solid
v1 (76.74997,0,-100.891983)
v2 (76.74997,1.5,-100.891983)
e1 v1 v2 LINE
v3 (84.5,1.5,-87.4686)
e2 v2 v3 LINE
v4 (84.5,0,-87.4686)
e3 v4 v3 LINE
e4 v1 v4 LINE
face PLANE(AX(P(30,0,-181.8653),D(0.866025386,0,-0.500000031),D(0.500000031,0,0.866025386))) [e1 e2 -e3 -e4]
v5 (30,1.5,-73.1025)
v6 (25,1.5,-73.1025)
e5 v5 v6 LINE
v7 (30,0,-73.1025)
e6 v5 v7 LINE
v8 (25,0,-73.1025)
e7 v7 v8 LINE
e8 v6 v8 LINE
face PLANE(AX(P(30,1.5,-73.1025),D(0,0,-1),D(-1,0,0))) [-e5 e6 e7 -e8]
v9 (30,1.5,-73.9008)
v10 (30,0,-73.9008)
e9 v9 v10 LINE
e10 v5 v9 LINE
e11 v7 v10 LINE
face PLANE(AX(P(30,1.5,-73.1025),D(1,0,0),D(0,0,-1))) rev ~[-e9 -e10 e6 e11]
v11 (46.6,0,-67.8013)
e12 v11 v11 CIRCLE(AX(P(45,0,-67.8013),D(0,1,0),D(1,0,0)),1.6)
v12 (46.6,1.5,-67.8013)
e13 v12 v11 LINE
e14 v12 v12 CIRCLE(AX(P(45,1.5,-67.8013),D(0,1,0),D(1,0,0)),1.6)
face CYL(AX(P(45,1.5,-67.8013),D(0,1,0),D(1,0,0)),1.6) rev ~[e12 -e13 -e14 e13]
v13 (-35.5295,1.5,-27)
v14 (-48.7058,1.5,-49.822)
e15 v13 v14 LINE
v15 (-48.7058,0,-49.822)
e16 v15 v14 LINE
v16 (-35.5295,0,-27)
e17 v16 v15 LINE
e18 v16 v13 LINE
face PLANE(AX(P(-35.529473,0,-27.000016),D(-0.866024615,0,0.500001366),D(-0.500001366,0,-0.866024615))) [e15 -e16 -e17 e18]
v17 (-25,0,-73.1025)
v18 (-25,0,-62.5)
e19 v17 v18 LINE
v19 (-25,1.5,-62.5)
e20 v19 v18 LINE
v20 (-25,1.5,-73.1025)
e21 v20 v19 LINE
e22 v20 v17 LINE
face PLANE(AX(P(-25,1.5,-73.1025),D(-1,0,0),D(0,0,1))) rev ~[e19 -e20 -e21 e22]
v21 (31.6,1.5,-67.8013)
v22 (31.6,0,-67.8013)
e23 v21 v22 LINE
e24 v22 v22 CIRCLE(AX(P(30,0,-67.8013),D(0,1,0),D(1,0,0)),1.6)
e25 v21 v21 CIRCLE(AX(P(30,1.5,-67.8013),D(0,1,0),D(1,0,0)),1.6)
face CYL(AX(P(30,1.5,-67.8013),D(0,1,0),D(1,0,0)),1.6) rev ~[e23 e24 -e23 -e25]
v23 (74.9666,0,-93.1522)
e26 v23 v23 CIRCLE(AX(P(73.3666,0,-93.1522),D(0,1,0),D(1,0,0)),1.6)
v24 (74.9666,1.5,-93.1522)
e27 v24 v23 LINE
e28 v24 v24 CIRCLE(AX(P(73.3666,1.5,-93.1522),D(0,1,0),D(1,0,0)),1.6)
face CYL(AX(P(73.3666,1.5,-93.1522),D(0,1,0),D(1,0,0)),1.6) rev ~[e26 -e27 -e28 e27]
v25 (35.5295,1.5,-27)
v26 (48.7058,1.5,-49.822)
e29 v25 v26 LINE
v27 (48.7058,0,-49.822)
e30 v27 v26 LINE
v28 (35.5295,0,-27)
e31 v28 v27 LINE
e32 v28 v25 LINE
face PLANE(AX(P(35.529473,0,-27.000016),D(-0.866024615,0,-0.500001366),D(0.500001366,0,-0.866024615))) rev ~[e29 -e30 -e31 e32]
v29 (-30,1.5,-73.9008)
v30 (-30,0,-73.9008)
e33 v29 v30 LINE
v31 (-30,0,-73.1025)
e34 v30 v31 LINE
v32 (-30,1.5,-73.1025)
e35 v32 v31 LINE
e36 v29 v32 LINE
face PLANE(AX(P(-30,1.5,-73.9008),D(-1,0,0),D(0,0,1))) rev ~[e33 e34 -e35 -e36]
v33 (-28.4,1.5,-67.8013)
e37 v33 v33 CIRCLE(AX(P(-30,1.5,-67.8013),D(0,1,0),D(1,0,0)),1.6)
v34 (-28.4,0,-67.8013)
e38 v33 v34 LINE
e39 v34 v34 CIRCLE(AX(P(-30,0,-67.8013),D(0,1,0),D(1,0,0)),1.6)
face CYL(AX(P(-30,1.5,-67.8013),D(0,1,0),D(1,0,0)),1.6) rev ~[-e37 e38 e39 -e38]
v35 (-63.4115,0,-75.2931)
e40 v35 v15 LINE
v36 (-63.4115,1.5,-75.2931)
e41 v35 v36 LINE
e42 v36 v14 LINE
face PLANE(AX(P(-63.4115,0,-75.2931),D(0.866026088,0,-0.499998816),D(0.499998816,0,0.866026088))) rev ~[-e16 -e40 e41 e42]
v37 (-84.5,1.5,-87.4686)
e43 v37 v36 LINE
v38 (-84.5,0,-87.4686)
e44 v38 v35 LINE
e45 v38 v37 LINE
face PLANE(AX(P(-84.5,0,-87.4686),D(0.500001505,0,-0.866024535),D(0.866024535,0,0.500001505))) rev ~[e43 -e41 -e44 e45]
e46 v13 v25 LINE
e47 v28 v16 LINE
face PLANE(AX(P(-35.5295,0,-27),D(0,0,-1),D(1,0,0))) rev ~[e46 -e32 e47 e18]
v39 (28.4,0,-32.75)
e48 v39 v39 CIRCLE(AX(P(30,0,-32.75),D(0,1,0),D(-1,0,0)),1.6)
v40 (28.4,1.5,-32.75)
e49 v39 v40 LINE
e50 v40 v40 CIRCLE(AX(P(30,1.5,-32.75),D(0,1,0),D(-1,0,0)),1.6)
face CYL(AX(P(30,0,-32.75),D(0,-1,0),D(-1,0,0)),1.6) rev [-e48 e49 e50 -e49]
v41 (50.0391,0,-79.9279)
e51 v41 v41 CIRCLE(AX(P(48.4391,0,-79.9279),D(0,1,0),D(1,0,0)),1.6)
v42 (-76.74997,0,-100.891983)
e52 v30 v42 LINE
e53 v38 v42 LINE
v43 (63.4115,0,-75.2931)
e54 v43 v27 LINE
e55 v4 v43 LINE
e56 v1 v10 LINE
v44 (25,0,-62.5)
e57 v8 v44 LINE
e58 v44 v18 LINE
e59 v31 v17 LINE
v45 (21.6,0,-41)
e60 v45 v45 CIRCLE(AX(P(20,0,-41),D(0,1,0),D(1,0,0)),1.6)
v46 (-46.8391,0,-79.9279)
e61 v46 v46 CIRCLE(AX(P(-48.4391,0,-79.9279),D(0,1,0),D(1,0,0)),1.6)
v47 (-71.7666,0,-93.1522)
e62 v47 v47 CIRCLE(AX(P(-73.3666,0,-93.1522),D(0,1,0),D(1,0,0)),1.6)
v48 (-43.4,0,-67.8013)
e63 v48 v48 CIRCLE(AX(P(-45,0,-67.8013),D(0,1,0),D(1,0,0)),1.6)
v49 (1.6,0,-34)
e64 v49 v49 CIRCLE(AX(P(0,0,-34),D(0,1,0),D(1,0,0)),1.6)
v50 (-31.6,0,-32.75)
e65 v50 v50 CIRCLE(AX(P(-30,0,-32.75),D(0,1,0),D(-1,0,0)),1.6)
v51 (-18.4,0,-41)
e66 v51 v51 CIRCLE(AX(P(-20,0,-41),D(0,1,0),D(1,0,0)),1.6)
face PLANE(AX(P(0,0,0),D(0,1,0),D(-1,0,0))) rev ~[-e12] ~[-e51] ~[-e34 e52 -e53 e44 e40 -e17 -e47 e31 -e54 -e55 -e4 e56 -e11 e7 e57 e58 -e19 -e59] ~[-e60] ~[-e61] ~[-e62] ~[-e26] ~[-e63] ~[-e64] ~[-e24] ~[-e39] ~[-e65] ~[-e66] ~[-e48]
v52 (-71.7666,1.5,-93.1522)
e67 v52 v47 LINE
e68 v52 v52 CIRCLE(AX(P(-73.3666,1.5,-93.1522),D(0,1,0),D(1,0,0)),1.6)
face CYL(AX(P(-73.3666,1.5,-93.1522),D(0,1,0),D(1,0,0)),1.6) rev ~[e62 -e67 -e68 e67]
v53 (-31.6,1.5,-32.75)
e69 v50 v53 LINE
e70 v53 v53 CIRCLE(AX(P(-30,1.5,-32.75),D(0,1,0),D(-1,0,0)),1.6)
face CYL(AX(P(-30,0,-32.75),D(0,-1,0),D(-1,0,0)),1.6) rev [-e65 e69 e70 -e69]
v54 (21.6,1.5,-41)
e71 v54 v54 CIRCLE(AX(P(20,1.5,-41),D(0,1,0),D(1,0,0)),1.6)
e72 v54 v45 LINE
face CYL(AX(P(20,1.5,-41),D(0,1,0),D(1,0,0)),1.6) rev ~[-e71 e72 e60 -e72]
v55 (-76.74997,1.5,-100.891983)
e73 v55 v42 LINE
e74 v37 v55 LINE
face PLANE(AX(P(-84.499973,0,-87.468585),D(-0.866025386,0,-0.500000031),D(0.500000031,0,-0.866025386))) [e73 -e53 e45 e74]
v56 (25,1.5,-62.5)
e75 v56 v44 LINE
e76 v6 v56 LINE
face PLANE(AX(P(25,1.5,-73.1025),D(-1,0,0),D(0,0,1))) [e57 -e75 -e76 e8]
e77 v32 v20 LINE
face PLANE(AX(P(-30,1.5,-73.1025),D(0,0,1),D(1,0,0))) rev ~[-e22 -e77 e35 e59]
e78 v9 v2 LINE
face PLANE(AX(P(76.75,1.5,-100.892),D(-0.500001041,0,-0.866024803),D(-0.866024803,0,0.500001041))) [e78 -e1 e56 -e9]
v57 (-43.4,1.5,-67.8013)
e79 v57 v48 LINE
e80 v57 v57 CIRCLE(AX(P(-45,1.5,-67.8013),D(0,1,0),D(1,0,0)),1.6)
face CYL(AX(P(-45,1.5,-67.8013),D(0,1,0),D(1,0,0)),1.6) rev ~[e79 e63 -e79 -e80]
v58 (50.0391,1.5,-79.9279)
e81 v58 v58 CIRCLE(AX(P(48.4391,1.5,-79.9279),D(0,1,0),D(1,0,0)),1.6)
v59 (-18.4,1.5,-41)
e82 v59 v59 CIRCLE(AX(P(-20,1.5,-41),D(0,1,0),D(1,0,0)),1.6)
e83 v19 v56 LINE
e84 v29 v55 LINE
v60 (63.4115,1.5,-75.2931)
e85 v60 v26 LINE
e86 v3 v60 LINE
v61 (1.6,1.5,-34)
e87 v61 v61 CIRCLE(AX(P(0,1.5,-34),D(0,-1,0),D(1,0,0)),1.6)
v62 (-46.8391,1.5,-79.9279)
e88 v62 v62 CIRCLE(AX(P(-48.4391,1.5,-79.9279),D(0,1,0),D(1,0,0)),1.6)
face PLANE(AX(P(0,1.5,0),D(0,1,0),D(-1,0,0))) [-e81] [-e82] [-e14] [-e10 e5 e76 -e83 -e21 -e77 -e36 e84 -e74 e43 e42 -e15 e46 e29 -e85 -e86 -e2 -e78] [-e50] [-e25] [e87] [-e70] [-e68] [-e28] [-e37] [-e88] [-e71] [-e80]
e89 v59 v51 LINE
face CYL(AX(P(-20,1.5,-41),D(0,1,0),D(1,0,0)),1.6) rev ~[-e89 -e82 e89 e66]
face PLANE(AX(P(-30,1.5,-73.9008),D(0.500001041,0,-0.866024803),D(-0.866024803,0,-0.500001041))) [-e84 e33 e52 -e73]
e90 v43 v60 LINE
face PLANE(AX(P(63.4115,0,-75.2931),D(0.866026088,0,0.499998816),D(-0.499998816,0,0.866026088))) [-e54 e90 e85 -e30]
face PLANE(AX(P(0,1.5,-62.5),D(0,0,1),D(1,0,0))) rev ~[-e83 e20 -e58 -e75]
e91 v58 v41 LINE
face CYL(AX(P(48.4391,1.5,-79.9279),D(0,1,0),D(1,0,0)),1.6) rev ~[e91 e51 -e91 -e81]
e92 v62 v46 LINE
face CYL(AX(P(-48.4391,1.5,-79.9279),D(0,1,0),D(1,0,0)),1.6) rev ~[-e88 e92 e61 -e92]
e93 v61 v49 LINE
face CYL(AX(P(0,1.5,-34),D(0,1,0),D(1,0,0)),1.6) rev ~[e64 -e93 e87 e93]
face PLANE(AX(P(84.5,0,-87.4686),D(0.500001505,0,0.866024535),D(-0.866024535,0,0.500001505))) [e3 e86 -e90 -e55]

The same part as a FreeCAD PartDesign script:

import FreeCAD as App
import Part
import Sketcher

V = App.Vector
Q = App.Units.Quantity


def add_polygon(sketch, points):
    """Adds a closed chain of lines whose ends are joined by coincident constraints."""
    first, n = sketch.GeometryCount, len(points)
    for a, b in zip(points, points[1:] + points[:1]):
        sketch.addGeometry(Part.LineSegment(App.Vector(*a, 0), App.Vector(*b, 0)), False)
    for i in range(n):
        sketch.addConstraint(Sketcher.Constraint("Coincident", first + i, 2, first + (i + 1) % n, 1))

doc = App.newDocument("Part")
body = doc.addObject("PartDesign::Body", "Body")

# Sketch on XZ plane
sketch1 = doc.addObject("Sketcher::SketchObject", "Sketch")
body.addObject(sketch1)
sketch1.AttachmentSupport = (doc.XZ_Plane, [""])
sketch1.MapMode = "FlatFace"
add_polygon(sketch1, [(-63.4, -75.3), (-48.7, -49.8), (-35.5, -27), (35.5, -27), (48.7, -49.8), (63.4, -75.3), (84.5, -87.5), (30, -181.9), (-30, -181.9), (-84.5, -87.5)])  # lines 0-9
sketch1.addGeometry(Part.Circle(V(-30, -32.8, 0), V(0, 0, 1), 1.6), False)  # 10
sketch1.addGeometry(Part.Circle(V(30, -32.8, 0), V(0, 0, 1), 1.6), False)  # 11
sketch1.addConstraint(Sketcher.Constraint("Horizontal", 2))
sketch1.addConstraint(Sketcher.Constraint("Horizontal", 7))
sketch1.addConstraint(Sketcher.Constraint("Equal", 10, 11))
sketch1.addConstraint(Sketcher.Constraint("Symmetric", 10, 3, 11, 3, -2))
sketch1.addConstraint(Sketcher.Constraint("Symmetric", 0, 2, 3, 2, -2))
sketch1.addConstraint(Sketcher.Constraint("Symmetric", 5, 2, 8, 2, -2))
sketch1.addConstraint(Sketcher.Constraint("Symmetric", 4, 2, 9, 2, -2))
sketch1.addConstraint(Sketcher.Constraint("Parallel", 0, 1))
sketch1.addConstraint(Sketcher.Constraint("Parallel", 3, 4))
sketch1.addConstraint(Sketcher.Constraint("Perpendicular", 1, 5))
sketch1.addConstraint(Sketcher.Constraint("Perpendicular", 5, 6))
sketch1.addConstraint(Sketcher.Constraint("Parallel", 4, 8))
sketch1.addConstraint(Sketcher.Constraint("Vertical", 11, 3, 6, 2))
sketch1.addConstraint(Sketcher.Constraint("Diameter", 10, 3.2))
sketch1.addConstraint(Sketcher.Constraint("DistanceX", 7, 2, 7, 1, 60.0))
sketch1.addConstraint(Sketcher.Constraint("Angle", 0, Q("60 deg")))
sketch1.addConstraint(Sketcher.Constraint("DistanceY", 1, 2, -1, 1, 27.0))
sketch1.addConstraint(Sketcher.Constraint("DistanceY", 10, 3, -1, 1, 32.75))
sketch1.addConstraint(Sketcher.Constraint("Distance", 6, 109.0))
sketch1.addConstraint(Sketcher.Constraint("DistanceX", 2, 1, 2, 2, 71.059))
sketch1.addConstraint(Sketcher.Constraint("Distance", 5, 24.351))
sketch1.addConstraint(Sketcher.Constraint("DistanceY", 0, 2, -1, 1, 49.822))
pad1 = doc.addObject("PartDesign::Pad", "Pad")
body.addObject(pad1)
pad1.Profile = sketch1
pad1.Length = 1.5
pad1.Reversed = True

# Sketch on XZ plane
sketch2 = doc.addObject("Sketcher::SketchObject", "Sketch001")
body.addObject(sketch2)
sketch2.AttachmentSupport = (doc.XZ_Plane, [""])
sketch2.MapMode = "FlatFace"
sketch2.AttachmentOffset = App.Placement(V(0, 0, -1.5), App.Rotation())
sketch2.addGeometry(Part.Circle(V(30, -67.8, 0), V(0, 0, 1), 1.6), False)  # 0
sketch2.addGeometry(Part.Circle(V(45, -67.8, 0), V(0, 0, 1), 1.6), False)  # 1
add_polygon(sketch2, [(30, -181.9), (-30, -181.9), (-76.8, -100.9), (-30, -73.9), (-30, -73.1), (-25, -73.1), (-25, -62.5), (25, -62.5), (25, -73.1), (30, -73.1), (30, -73.9), (76.7, -100.9)])  # lines 2-13
sketch2.addGeometry(Part.Circle(V(-30, -67.8, 0), V(0, 0, 1), 1.6), False)  # 14
sketch2.addGeometry(Part.Circle(V(-45, -67.8, 0), V(0, 0, 1), 1.6), False)  # 15
sketch2.addConstraint(Sketcher.Constraint("Horizontal", 2))
sketch2.addConstraint(Sketcher.Constraint("Vertical", 5))
sketch2.addConstraint(Sketcher.Constraint("Horizontal", 6))
sketch2.addConstraint(Sketcher.Constraint("Vertical", 7))
sketch2.addConstraint(Sketcher.Constraint("Horizontal", 8))
sketch2.addConstraint(Sketcher.Constraint("Vertical", 9))
sketch2.addConstraint(Sketcher.Constraint("Horizontal", 10))
sketch2.addConstraint(Sketcher.Constraint("Vertical", 11))
sketch2.addConstraint(Sketcher.Constraint("Equal", 0, 1))
sketch2.addConstraint(Sketcher.Constraint("Equal", 1, 14))
sketch2.addConstraint(Sketcher.Constraint("Equal", 14, 15))
sketch2.addConstraint(Sketcher.Constraint("Symmetric", 0, 3, 14, 3, -2))
sketch2.addConstraint(Sketcher.Constraint("Symmetric", 1, 3, 15, 3, -2))
sketch2.addConstraint(Sketcher.Constraint("Symmetric", 6, 2, 9, 2, -2))
sketch2.addConstraint(Sketcher.Constraint("Symmetric", 4, 2, 11, 2, -2))
sketch2.addConstraint(Sketcher.Constraint("Symmetric", 3, 2, 12, 2, -2))
sketch2.addConstraint(Sketcher.Constraint("Perpendicular", 3, 4))
sketch2.addConstraint(Sketcher.Constraint("Perpendicular", 12, 13))
sketch2.addConstraint(Sketcher.Constraint("Horizontal", 0, 3, 1, 3))
sketch2.addConstraint(Sketcher.Constraint("Vertical", 14, 3, 2, 2))
sketch2.addConstraint(Sketcher.Constraint("Vertical", 2, 2, 4, 2))
sketch2.addConstraint(Sketcher.Constraint("Diameter", 0, 3.2))
sketch2.addConstraint(Sketcher.Constraint("DistanceX", 2, 2, 2, 1, 60.0))
sketch2.addConstraint(Sketcher.Constraint("DistanceX", 6, 1, 6, 2, 5.0))
sketch2.addConstraint(Sketcher.Constraint("Angle", 3, Q("120 deg")))
sketch2.addConstraint(Sketcher.Constraint("DistanceX", -1, 1, 1, 3, 45.0))
sketch2.addConstraint(Sketcher.Constraint("Distance", 3, 93.5))
sketch2.addConstraint(Sketcher.Constraint("DistanceY", 7, 2, -1, 1, 62.5))
sketch2.addConstraint(Sketcher.Constraint("DistanceY", 5, 1, 5, 2, 0.7983))
sketch2.addConstraint(Sketcher.Constraint("DistanceY", 7, 1, 7, 2, 10.6025))
sketch2.addConstraint(Sketcher.Constraint("DistanceY", 2, 2, 14, 3, 114.064))
pocket1 = doc.addObject("PartDesign::Pocket", "Pocket")
body.addObject(pocket1)
pocket1.Profile = sketch2
pocket1.Length = 1.5
pocket1.Reversed = True

# Sketch on XZ plane
sketch3 = doc.addObject("Sketcher::SketchObject", "Sketch002")
body.addObject(sketch3)
sketch3.AttachmentSupport = (doc.XZ_Plane, [""])
sketch3.MapMode = "FlatFace"
sketch3.AttachmentOffset = App.Placement(V(0, 0, -1.5), App.Rotation())
sketch3.addGeometry(Part.Circle(V(0, -34, 0), V(0, 0, 1), 1.6), False)
sketch3.addGeometry(Part.Circle(V(-20, -41, 0), V(0, 0, 1), 1.6), False)
sketch3.addGeometry(Part.Circle(V(20, -41, 0), V(0, 0, 1), 1.6), False)
sketch3.addConstraint(Sketcher.Constraint("Equal", 0, 1))
sketch3.addConstraint(Sketcher.Constraint("Equal", 1, 2))
sketch3.addConstraint(Sketcher.Constraint("Symmetric", 1, 3, 2, 3, -2))
sketch3.addConstraint(Sketcher.Constraint("PointOnObject", 0, 3, -2))
sketch3.addConstraint(Sketcher.Constraint("Diameter", 0, 3.2))
sketch3.addConstraint(Sketcher.Constraint("DistanceY", 1, 3, 0, 3, 7.0))
sketch3.addConstraint(Sketcher.Constraint("DistanceX", 1, 3, 2, 3, 40.0))
sketch3.addConstraint(Sketcher.Constraint("DistanceY", 0, 3, -1, 1, 34.0))
pocket2 = doc.addObject("PartDesign::Pocket", "Pocket001")
body.addObject(pocket2)
pocket2.Profile = sketch3
pocket2.Length = 1.5
pocket2.Reversed = True

# Sketch on XZ plane
sketch4 = doc.addObject("Sketcher::SketchObject", "Sketch003")
body.addObject(sketch4)
sketch4.AttachmentSupport = (doc.XZ_Plane, [""])
sketch4.MapMode = "FlatFace"
sketch4.AttachmentOffset = App.Placement(V(0, 0, -1.5), App.Rotation())
sketch4.addGeometry(Part.Circle(V(-73.4, -93.2, 0), V(0, 0, 1), 1.6), False)
sketch4.addGeometry(Part.Circle(V(-48.4, -79.9, 0), V(0, 0, 1), 1.6), False)
sketch4.addGeometry(Part.Circle(V(48.4, -79.9, 0), V(0, 0, 1), 1.6), False)
sketch4.addGeometry(Part.Circle(V(73.4, -93.2, 0), V(0, 0, 1), 1.6), False)
sketch4.addConstraint(Sketcher.Constraint("Equal", 0, 1))
sketch4.addConstraint(Sketcher.Constraint("Equal", 1, 2))
sketch4.addConstraint(Sketcher.Constraint("Equal", 2, 3))
sketch4.addConstraint(Sketcher.Constraint("Symmetric", 1, 3, 2, 3, -2))
sketch4.addConstraint(Sketcher.Constraint("Symmetric", 0, 3, 3, 3, -2))
sketch4.addConstraint(Sketcher.Constraint("Diameter", 0, 3.2))
sketch4.addConstraint(Sketcher.Constraint("DistanceX", 1, 3, -1, 1, 48.439))
sketch4.addConstraint(Sketcher.Constraint("DistanceY", 1, 3, -1, 1, 79.928))
sketch4.addConstraint(Sketcher.Constraint("DistanceX", 0, 3, -1, 1, 73.3666))
sketch4.addConstraint(Sketcher.Constraint("DistanceY", 0, 3, -1, 1, 93.1522))
pocket3 = doc.addObject("PartDesign::Pocket", "Pocket002")
body.addObject(pocket3)
pocket3.Profile = sketch4
pocket3.Length = 1.5
pocket3.Reversed = True

doc.recompute()
